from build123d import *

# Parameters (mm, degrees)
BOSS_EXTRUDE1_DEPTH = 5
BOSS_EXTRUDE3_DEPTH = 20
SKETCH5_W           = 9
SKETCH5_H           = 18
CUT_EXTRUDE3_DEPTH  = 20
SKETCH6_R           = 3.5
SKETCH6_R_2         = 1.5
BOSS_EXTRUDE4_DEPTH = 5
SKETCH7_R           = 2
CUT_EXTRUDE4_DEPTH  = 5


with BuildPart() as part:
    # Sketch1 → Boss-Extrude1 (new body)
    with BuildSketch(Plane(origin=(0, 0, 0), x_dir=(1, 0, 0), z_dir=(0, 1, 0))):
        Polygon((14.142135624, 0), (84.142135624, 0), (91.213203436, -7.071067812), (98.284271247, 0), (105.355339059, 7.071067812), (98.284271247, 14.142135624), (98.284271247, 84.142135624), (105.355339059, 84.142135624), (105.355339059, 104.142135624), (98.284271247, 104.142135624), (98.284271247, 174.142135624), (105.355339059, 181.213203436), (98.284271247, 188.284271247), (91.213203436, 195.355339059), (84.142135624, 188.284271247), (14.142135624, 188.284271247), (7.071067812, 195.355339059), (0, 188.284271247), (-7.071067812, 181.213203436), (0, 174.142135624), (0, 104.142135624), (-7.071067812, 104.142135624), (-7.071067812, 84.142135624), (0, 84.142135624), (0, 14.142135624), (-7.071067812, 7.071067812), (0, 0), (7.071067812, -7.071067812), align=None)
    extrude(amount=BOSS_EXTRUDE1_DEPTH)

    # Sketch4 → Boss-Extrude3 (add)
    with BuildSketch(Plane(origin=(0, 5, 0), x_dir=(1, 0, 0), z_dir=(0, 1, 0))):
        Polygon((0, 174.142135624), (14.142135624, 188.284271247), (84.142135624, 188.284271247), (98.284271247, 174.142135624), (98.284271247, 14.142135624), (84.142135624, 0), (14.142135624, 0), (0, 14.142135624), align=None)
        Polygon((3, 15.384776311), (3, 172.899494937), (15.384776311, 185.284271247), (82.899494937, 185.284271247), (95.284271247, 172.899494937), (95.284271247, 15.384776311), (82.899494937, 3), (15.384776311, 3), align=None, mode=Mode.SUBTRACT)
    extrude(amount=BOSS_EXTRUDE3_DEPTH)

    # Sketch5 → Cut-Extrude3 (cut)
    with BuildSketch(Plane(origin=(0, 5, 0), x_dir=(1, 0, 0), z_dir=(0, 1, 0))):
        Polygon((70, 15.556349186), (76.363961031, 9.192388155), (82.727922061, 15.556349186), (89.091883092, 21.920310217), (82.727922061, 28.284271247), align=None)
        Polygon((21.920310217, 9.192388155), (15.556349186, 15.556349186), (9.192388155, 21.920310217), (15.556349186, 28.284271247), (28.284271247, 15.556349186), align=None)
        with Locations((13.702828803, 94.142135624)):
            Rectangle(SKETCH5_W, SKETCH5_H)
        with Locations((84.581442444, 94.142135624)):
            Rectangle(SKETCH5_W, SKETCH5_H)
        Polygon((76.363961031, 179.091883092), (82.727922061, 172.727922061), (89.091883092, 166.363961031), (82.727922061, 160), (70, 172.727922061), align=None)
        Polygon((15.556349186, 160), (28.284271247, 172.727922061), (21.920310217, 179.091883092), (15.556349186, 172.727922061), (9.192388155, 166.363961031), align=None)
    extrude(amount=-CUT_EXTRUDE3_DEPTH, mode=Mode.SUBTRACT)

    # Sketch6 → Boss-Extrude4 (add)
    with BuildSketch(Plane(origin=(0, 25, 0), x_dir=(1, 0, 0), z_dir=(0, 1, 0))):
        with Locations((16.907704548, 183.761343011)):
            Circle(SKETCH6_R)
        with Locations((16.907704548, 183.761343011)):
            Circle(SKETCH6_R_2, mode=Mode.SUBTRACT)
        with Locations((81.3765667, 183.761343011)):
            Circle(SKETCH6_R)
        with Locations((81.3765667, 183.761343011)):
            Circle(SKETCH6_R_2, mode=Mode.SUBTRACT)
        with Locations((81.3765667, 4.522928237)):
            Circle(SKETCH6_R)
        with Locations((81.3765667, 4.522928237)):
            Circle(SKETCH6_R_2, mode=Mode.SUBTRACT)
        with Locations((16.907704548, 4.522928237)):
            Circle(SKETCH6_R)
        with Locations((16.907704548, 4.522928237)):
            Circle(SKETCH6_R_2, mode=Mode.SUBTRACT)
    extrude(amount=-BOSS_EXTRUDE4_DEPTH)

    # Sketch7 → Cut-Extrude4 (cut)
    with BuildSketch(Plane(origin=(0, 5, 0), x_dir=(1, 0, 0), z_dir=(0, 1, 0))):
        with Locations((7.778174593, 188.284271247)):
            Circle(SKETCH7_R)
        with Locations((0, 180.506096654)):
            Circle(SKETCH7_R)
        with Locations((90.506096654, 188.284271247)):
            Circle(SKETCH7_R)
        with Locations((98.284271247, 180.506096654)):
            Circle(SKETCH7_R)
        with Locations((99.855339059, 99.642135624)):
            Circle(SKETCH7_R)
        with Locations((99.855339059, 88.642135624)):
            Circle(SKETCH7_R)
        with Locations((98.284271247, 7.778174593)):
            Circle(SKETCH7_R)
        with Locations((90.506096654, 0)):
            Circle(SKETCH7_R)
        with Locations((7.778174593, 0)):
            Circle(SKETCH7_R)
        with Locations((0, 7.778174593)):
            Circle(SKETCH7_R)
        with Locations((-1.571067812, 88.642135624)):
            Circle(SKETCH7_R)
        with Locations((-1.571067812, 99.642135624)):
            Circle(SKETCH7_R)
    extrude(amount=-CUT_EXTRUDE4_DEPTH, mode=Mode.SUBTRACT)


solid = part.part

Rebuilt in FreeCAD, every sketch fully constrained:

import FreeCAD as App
import Part
import Sketcher

V = App.Vector
Q = App.Units.Quantity

doc = App.newDocument("Part")
body = doc.addObject("PartDesign::Body", "Body")

sketch1 = doc.addObject("Sketcher::SketchObject", "Sketch")
body.addObject(sketch1)
sketch1.AttachmentSupport = (doc.XZ_Plane, [""])
sketch1.MapMode = "FlatFace"
sketch1.addGeometry([
    Part.LineSegment(V(14, 0, 0), V(84, 0, 0)),
    Part.LineSegment(V(84, 0, 0), V(91, 7, 0)),
    Part.LineSegment(V(91, 7, 0), V(98, 0, 0)),
    Part.LineSegment(V(98, 0, 0), V(105, -7, 0)),
    Part.LineSegment(V(105, -7, 0), V(98, -14, 0)),
    Part.LineSegment(V(98, -14, 0), V(98, -84, 0)),
    Part.LineSegment(V(98, -84, 0), V(105, -84, 0)),
    Part.LineSegment(V(105, -84, 0), V(105, -104, 0)),
    Part.LineSegment(V(105, -104, 0), V(98, -104, 0)),
    Part.LineSegment(V(98, -104, 0), V(98, -174, 0)),
    Part.LineSegment(V(98, -174, 0), V(105, -181, 0)),
    Part.LineSegment(V(105, -181, 0), V(98, -188, 0)),
    Part.LineSegment(V(98, -188, 0), V(91, -195, 0)),
    Part.LineSegment(V(91, -195, 0), V(84, -188, 0)),
    Part.LineSegment(V(84, -188, 0), V(14, -188, 0)),
    Part.LineSegment(V(14, -188, 0), V(7, -195, 0)),
    Part.LineSegment(V(7, -195, 0), V(0, -188, 0)),
    Part.LineSegment(V(0, -188, 0), V(-7, -181, 0)),
    Part.LineSegment(V(-7, -181, 0), V(0, -174, 0)),
    Part.LineSegment(V(0, -174, 0), V(0, -104, 0)),
    Part.LineSegment(V(0, -104, 0), V(-7, -104, 0)),
    Part.LineSegment(V(-7, -104, 0), V(-7, -84, 0)),
    Part.LineSegment(V(-7, -84, 0), V(0, -84, 0)),
    Part.LineSegment(V(0, -84, 0), V(0, -14, 0)),
    Part.LineSegment(V(0, -14, 0), V(-7, -7, 0)),
    Part.LineSegment(V(-7, -7, 0), V(7, 7, 0)),
    Part.LineSegment(V(7, 7, 0), V(14, 0, 0)),
], False)
sketch1.addConstraint([
    Sketcher.Constraint("Coincident", 0, 2, 1, 1),
    Sketcher.Constraint("Coincident", 1, 2, 2, 1),
    Sketcher.Constraint("Coincident", 2, 2, 3, 1),
    Sketcher.Constraint("Coincident", 3, 2, 4, 1),
    Sketcher.Constraint("Coincident", 4, 2, 5, 1),
    Sketcher.Constraint("Coincident", 5, 2, 6, 1),
    Sketcher.Constraint("Coincident", 6, 2, 7, 1),
    Sketcher.Constraint("Coincident", 7, 2, 8, 1),
    Sketcher.Constraint("Coincident", 8, 2, 9, 1),
    Sketcher.Constraint("Coincident", 9, 2, 10, 1),
    Sketcher.Constraint("Coincident", 10, 2, 11, 1),
    Sketcher.Constraint("Coincident", 11, 2, 12, 1),
    Sketcher.Constraint("Coincident", 12, 2, 13, 1),
    Sketcher.Constraint("Coincident", 13, 2, 14, 1),
    Sketcher.Constraint("Coincident", 14, 2, 15, 1),
    Sketcher.Constraint("Coincident", 15, 2, 16, 1),
    Sketcher.Constraint("Coincident", 16, 2, 17, 1),
    Sketcher.Constraint("Coincident", 17, 2, 18, 1),
    Sketcher.Constraint("Coincident", 18, 2, 19, 1),
    Sketcher.Constraint("Coincident", 19, 2, 20, 1),
    Sketcher.Constraint("Coincident", 20, 2, 21, 1),
    Sketcher.Constraint("Coincident", 21, 2, 22, 1),
    Sketcher.Constraint("Coincident", 22, 2, 23, 1),
    Sketcher.Constraint("Coincident", 23, 2, 24, 1),
    Sketcher.Constraint("Coincident", 24, 2, 25, 1),
    Sketcher.Constraint("Coincident", 25, 2, 26, 1),
    Sketcher.Constraint("Coincident", 26, 2, 0, 1),
    Sketcher.Constraint("Horizontal", 0),
    Sketcher.Constraint("Vertical", 5),
    Sketcher.Constraint("Horizontal", 6),
    Sketcher.Constraint("Vertical", 7),
    Sketcher.Constraint("Horizontal", 8),
    Sketcher.Constraint("Vertical", 9),
    Sketcher.Constraint("Horizontal", 14),
    Sketcher.Constraint("Vertical", 19),
    Sketcher.Constraint("Horizontal", 20),
    Sketcher.Constraint("Vertical", 21),
    Sketcher.Constraint("Horizontal", 22),
    Sketcher.Constraint("Vertical", 23),
    Sketcher.Constraint("Symmetric", 24, 2, 25, 2, -1, 1),
    Sketcher.Constraint("PointOnObject", 0, 2, -1),
    Sketcher.Constraint("PointOnObject", 2, 2, -1),
    Sketcher.Constraint("PointOnObject", 16, 2, -2),
    Sketcher.Constraint("PointOnObject", 18, 2, -2),
    Sketcher.Constraint("PointOnObject", 22, 2, -2),
    Sketcher.Constraint("Perpendicular", 1, 2),
    Sketcher.Constraint("Parallel", 2, 3),
    Sketcher.Constraint("Perpendicular", 3, 4),
    Sketcher.Constraint("Perpendicular", 4, 10),
    Sketcher.Constraint("Perpendicular", 10, 11),
    Sketcher.Constraint("Parallel", 11, 12),
    Sketcher.Constraint("Perpendicular", 12, 13),
    Sketcher.Constraint("Perpendicular", 13, 15),
    Sketcher.Constraint("Perpendicular", 15, 16),
    Sketcher.Constraint("Parallel", 16, 17),
    Sketcher.Constraint("Perpendicular", 17, 18),
    Sketcher.Constraint("Perpendicular", 18, 24),
    Sketcher.Constraint("Perpendicular", 24, 25),
    Sketcher.Constraint("Perpendicular", 25, 26),
    Sketcher.Constraint("Horizontal", 11, 2, 13, 2),
    Sketcher.Constraint("Horizontal", 12, 2, 15, 2),
    Sketcher.Constraint("Horizontal", 14, 2, 16, 2),
    Sketcher.Constraint("Horizontal", 10, 2, 17, 2),
    Sketcher.Constraint("Horizontal", 9, 2, 18, 2),
    Sketcher.Constraint("Horizontal", 8, 2, 19, 2),
    Sketcher.Constraint("Horizontal", 6, 2, 21, 2),
    Sketcher.Constraint("Horizontal", 4, 2, 23, 2),
    Sketcher.Constraint("Horizontal", 3, 2, 24, 2),
    Sketcher.Constraint("Horizontal", 1, 2, 25, 2),
    Sketcher.Constraint("Vertical", 2, 2, 4, 2),
    Sketcher.Constraint("Vertical", 3, 2, 6, 2),
    Sketcher.Constraint("Vertical", 5, 2, 8, 2),
    Sketcher.Constraint("Vertical", 7, 2, 10, 2),
    Sketcher.Constraint("Vertical", 1, 2, 12, 2),
    Sketcher.Constraint("Vertical", 17, 2, 20, 2),
    Sketcher.Constraint("Equal", 14, 5),
    Sketcher.Constraint("Equal", 5, 9),
    Sketcher.Constraint("DistanceX", 0, 1, 0, 2, Q("70 mm")),
    Sketcher.Constraint("DistanceY", 7, 2, 7, 1, Q("20 mm")),
    Sketcher.Constraint("Distance", 1, Q("10 mm")),
])
pad1 = doc.addObject("PartDesign::Pad", "Pad")
body.addObject(pad1)
pad1.Profile = sketch1
pad1.Length = 5
pad1.Reversed = True

sketch2 = doc.addObject("Sketcher::SketchObject", "Sketch001")
body.addObject(sketch2)
sketch2.AttachmentSupport = (doc.XZ_Plane, [""])
sketch2.MapMode = "FlatFace"
sketch2.AttachmentOffset = App.Placement(V(0, 0, -5), App.Rotation())
sketch2.addGeometry([
    Part.LineSegment(V(14, -188, 0), V(0, -174, 0)),
    Part.LineSegment(V(0, -174, 0), V(0, -14, 0)),
    Part.LineSegment(V(0, -14, 0), V(14, 0, 0)),
    Part.LineSegment(V(14, 0, 0), V(84, 0, 0)),
    Part.LineSegment(V(84, 0, 0), V(98, -14, 0)),
    Part.LineSegment(V(98, -14, 0), V(98, -174, 0)),
    Part.LineSegment(V(98, -174, 0), V(84, -188, 0)),
    Part.LineSegment(V(84, -188, 0), V(14, -188, 0)),
    Part.LineSegment(V(3, -15, 0), V(3, -173, 0)),
    Part.LineSegment(V(3, -173, 0), V(15, -185, 0)),
    Part.LineSegment(V(15, -185, 0), V(83, -185, 0)),
    Part.LineSegment(V(83, -185, 0), V(95, -173, 0)),
    Part.LineSegment(V(95, -173, 0), V(95, -15, 0)),
    Part.LineSegment(V(95, -15, 0), V(83, -3, 0)),
    Part.LineSegment(V(83, -3, 0), V(15, -3, 0)),
    Part.LineSegment(V(15, -3, 0), V(3, -15, 0)),
], False)
sketch2.addConstraint([
    Sketcher.Constraint("Coincident", 0, 2, 1, 1),
    Sketcher.Constraint("Coincident", 1, 2, 2, 1),
    Sketcher.Constraint("Coincident", 2, 2, 3, 1),
    Sketcher.Constraint("Coincident", 3, 2, 4, 1),
    Sketcher.Constraint("Coincident", 4, 2, 5, 1),
    Sketcher.Constraint("Coincident", 5, 2, 6, 1),
    Sketcher.Constraint("Coincident", 6, 2, 7, 1),
    Sketcher.Constraint("Coincident", 7, 2, 0, 1),
    Sketcher.Constraint("Coincident", 8, 2, 9, 1),
    Sketcher.Constraint("Coincident", 9, 2, 10, 1),
    Sketcher.Constraint("Coincident", 10, 2, 11, 1),
    Sketcher.Constraint("Coincident", 11, 2, 12, 1),
    Sketcher.Constraint("Coincident", 12, 2, 13, 1),
    Sketcher.Constraint("Coincident", 13, 2, 14, 1),
    Sketcher.Constraint("Coincident", 14, 2, 15, 1),
    Sketcher.Constraint("Coincident", 15, 2, 8, 1),
    Sketcher.Constraint("Vertical", 1),
    Sketcher.Constraint("Horizontal", 3),
    Sketcher.Constraint("Vertical", 5),
    Sketcher.Constraint("Horizontal", 7),
    Sketcher.Constraint("Vertical", 8),
    Sketcher.Constraint("Horizontal", 10),
    Sketcher.Constraint("Vertical", 12),
    Sketcher.Constraint("Horizontal", 14),
    Sketcher.Constraint("PointOnObject", 0, 2, -2),
    Sketcher.Constraint("PointOnObject", 2, 2, -1),
    Sketcher.Constraint("Perpendicular", 0, 2),
    Sketcher.Constraint("Perpendicular", 2, 4),
    Sketcher.Constraint("Perpendicular", 4, 6),
    Sketcher.Constraint("Perpendicular", 6, 9),
    Sketcher.Constraint("Perpendicular", 9, 11),
    Sketcher.Constraint("Perpendicular", 11, 13),
    Sketcher.Constraint("Perpendicular", 13, 15),
    Sketcher.Constraint("Horizontal", 1, 2, 4, 2),
    Sketcher.Constraint("Horizontal", 0, 2, 5, 2),
    Sketcher.Constraint("Horizontal", 8, 2, 11, 2),
    Sketcher.Constraint("Horizontal", 12, 2, 15, 2),
    Sketcher.Constraint("Vertical", 3, 2, 6, 2),
    Sketcher.Constraint("Vertical", 2, 2, 7, 2),
    Sketcher.Constraint("Vertical", 10, 2, 13, 2),
    Sketcher.Constraint("DistanceX", 3, 1, 3, 2, Q("70 mm")),
    Sketcher.Constraint("DistanceY", 1, 1, 1, 2, Q("160 mm")),
    Sketcher.Constraint("Distance", 0, Q("20 mm")),
    Sketcher.Constraint("DistanceX", -1, 1, 8, 2, Q("3 mm")),
    Sketcher.Constraint("DistanceY", 13, 2, -1, 1, Q("3 mm")),
    Sketcher.Constraint("DistanceY", 7, 2, 9, 2, Q("3 mm")),
    Sketcher.Constraint("DistanceX", 11, 2, 5, 2, Q("3 mm")),
    Sketcher.Constraint("DistanceX", 10, 1, 10, 2, Q("67.514719 mm")),
])
pad2 = doc.addObject("PartDesign::Pad", "Pad001")
body.addObject(pad2)
pad2.Profile = sketch2
pad2.Length = 20
pad2.Reversed = True

sketch3 = doc.addObject("Sketcher::SketchObject", "Sketch002")
body.addObject(sketch3)
sketch3.AttachmentSupport = (doc.XZ_Plane, [""])
sketch3.MapMode = "FlatFace"
sketch3.AttachmentOffset = App.Placement(V(0, 0, -5), App.Rotation())
sketch3.addGeometry([
    Part.LineSegment(V(70, -16, 0), V(76, -9, 0)),
    Part.LineSegment(V(76, -9, 0), V(83, -16, 0)),
    Part.LineSegment(V(83, -16, 0), V(89, -22, 0)),
    Part.LineSegment(V(89, -22, 0), V(83, -28, 0)),
    Part.LineSegment(V(83, -28, 0), V(70, -16, 0)),
    Part.LineSegment(V(9, -22, 0), V(22, -9, 0)),
    Part.LineSegment(V(22, -9, 0), V(28, -16, 0)),
    Part.LineSegment(V(28, -16, 0), V(16, -28, 0)),
    Part.LineSegment(V(16, -28, 0), V(9, -22, 0)),
    Part.LineSegment(V(9, -103, 0), V(9, -85, 0)),
    Part.LineSegment(V(9, -85, 0), V(18, -85, 0)),
    Part.LineSegment(V(18, -85, 0), V(18, -103, 0)),
    Part.LineSegment(V(18, -103, 0), V(9, -103, 0)),
    Part.LineSegment(V(80, -103, 0), V(80, -85, 0)),
    Part.LineSegment(V(80, -85, 0), V(89, -85, 0)),
    Part.LineSegment(V(89, -85, 0), V(89, -103, 0)),
    Part.LineSegment(V(89, -103, 0), V(80, -103, 0)),
    Part.LineSegment(V(83, -173, 0), V(76, -179, 0)),
    Part.LineSegment(V(76, -179, 0), V(70, -173, 0)),
    Part.LineSegment(V(70, -173, 0), V(83, -160, 0)),
    Part.LineSegment(V(83, -160, 0), V(89, -166, 0)),
    Part.LineSegment(V(89, -166, 0), V(83, -173, 0)),
    Part.LineSegment(V(16, -160, 0), V(28, -173, 0)),
    Part.LineSegment(V(28, -173, 0), V(22, -179, 0)),
    Part.LineSegment(V(22, -179, 0), V(16, -173, 0)),
    Part.LineSegment(V(16, -173, 0), V(9, -166, 0)),
    Part.LineSegment(V(9, -166, 0), V(16, -160, 0)),
], False)
sketch3.addConstraint([
    Sketcher.Constraint("Coincident", 0, 2, 1, 1),
    Sketcher.Constraint("Coincident", 1, 2, 2, 1),
    Sketcher.Constraint("Coincident", 2, 2, 3, 1),
    Sketcher.Constraint("Coincident", 3, 2, 4, 1),
    Sketcher.Constraint("Coincident", 4, 2, 0, 1),
    Sketcher.Constraint("Coincident", 5, 2, 6, 1),
    Sketcher.Constraint("Coincident", 6, 2, 7, 1),
    Sketcher.Constraint("Coincident", 7, 2, 8, 1),
    Sketcher.Constraint("Coincident", 8, 2, 5, 1),
    Sketcher.Constraint("Coincident", 9, 2, 10, 1),
    Sketcher.Constraint("Coincident", 10, 2, 11, 1),
    Sketcher.Constraint("Coincident", 11, 2, 12, 1),
    Sketcher.Constraint("Coincident", 12, 2, 9, 1),
    Sketcher.Constraint("Coincident", 13, 2, 14, 1),
    Sketcher.Constraint("Coincident", 14, 2, 15, 1),
    Sketcher.Constraint("Coincident", 15, 2, 16, 1),
    Sketcher.Constraint("Coincident", 16, 2, 13, 1),
    Sketcher.Constraint("Coincident", 17, 2, 18, 1),
    Sketcher.Constraint("Coincident", 18, 2, 19, 1),
    Sketcher.Constraint("Coincident", 19, 2, 20, 1),
    Sketcher.Constraint("Coincident", 20, 2, 21, 1),
    Sketcher.Constraint("Coincident", 21, 2, 17, 1),
    Sketcher.Constraint("Coincident", 22, 2, 23, 1),
    Sketcher.Constraint("Coincident", 23, 2, 24, 1),
    Sketcher.Constraint("Coincident", 24, 2, 25, 1),
    Sketcher.Constraint("Coincident", 25, 2, 26, 1),
    Sketcher.Constraint("Coincident", 26, 2, 22, 1),
    Sketcher.Constraint("Vertical", 9),
    Sketcher.Constraint("Horizontal", 10),
    Sketcher.Constraint("Vertical", 11),
    Sketcher.Constraint("Horizontal", 12),
    Sketcher.Constraint("Vertical", 13),
    Sketcher.Constraint("Horizontal", 14),
    Sketcher.Constraint("Vertical", 15),
    Sketcher.Constraint("Horizontal", 16),
    Sketcher.Constraint("Perpendicular", 0, 1),
    Sketcher.Constraint("Parallel", 1, 2),
    Sketcher.Constraint("Perpendicular", 2, 3),
    Sketcher.Constraint("Perpendicular", 3, 4),
    Sketcher.Constraint("Perpendicular", 4, 5),
    Sketcher.Constraint("Perpendicular", 5, 6),
    Sketcher.Constraint("Perpendicular", 6, 7),
    Sketcher.Constraint("Perpendicular", 7, 8),
    Sketcher.Constraint("Perpendicular", 8, 17),
    Sketcher.Constraint("Perpendicular", 17, 18),
    Sketcher.Constraint("Perpendicular", 18, 19),
    Sketcher.Constraint("Perpendicular", 19, 20),
    Sketcher.Constraint("Perpendicular", 20, 21),
    Sketcher.Constraint("Perpendicular", 21, 22),
    Sketcher.Constraint("Perpendicular", 22, 23),
    Sketcher.Constraint("Perpendicular", 23, 24),
    Sketcher.Constraint("Parallel", 24, 25),
    Sketcher.Constraint("Perpendicular", 25, 26),
    Sketcher.Constraint("Horizontal", 1, 2, 4, 2),
    Sketcher.Constraint("Horizontal", 0, 2, 5, 2),
    Sketcher.Constraint("Horizontal", 4, 2, 6, 2),
    Sketcher.Constraint("Horizontal", 3, 2, 7, 2),
    Sketcher.Constraint("Horizontal", 10, 2, 13, 2),
    Sketcher.Constraint("Horizontal", 12, 2, 15, 2),
    Sketcher.Constraint("Horizontal", 18, 2, 21, 2),
    Sketcher.Constraint("Horizontal", 21, 2, 22, 2),
    Sketcher.Constraint("Horizontal", 17, 2, 23, 2),
    Sketcher.Constraint("Horizontal", 22, 2, 24, 2),
    Sketcher.Constraint("Horizontal", 20, 2, 25, 2),
    Sketcher.Constraint("Vertical", 1, 2, 3, 2),
    Sketcher.Constraint("Vertical", 0, 2, 17, 2),
    Sketcher.Constraint("Vertical", 4, 2, 18, 2),
    Sketcher.Constraint("Vertical", 3, 2, 19, 2),
    Sketcher.Constraint("Vertical", 19, 2, 21, 2),
    Sketcher.Constraint("Vertical", 6, 2, 22, 2),
    Sketcher.Constraint("Equal", 12, 14),
    Sketcher.Constraint("DistanceX", 10, 1, 10, 2, Q("9 mm")),
    Sketcher.Constraint("DistanceY", 9, 1, 9, 2, Q("18 mm")),
    Sketcher.Constraint("Distance", 0, Q("9 mm")),
    Sketcher.Constraint("DistanceX", -1, 1, 4, 2, Q("70 mm")),
    Sketcher.Constraint("DistanceY", 19, 2, -1, 1, Q("160 mm")),
    Sketcher.Constraint("DistanceY", 0, 2, -1, 1, Q("9.192388 mm")),
    Sketcher.Constraint("DistanceX", -1, 1, 5, 2, Q("21.92031 mm")),
    Sketcher.Constraint("DistanceX", -1, 1, 9, 2, Q("9.202829 mm")),
    Sketcher.Constraint("DistanceX", 13, 2, 3, 2, Q("2.64648 mm")),
    Sketcher.Constraint("DistanceY", 9, 2, -1, 1, Q("85.142136 mm")),
])
pocket1 = doc.addObject("PartDesign::Pocket", "Pocket")
body.addObject(pocket1)
pocket1.Profile = sketch3
pocket1.Length = 20
pocket1.Reversed = True

sketch4 = doc.addObject("Sketcher::SketchObject", "Sketch003")
body.addObject(sketch4)
sketch4.AttachmentSupport = (doc.XZ_Plane, [""])
sketch4.MapMode = "FlatFace"
sketch4.AttachmentOffset = App.Placement(V(0, 0, -25), App.Rotation())
sketch4.addGeometry([
    Part.Circle(V(16.9, -183.8, 0), V(0, 0, 1), 3.5),
    Part.Circle(V(16.9, -183.8, 0), V(0, 0, 1), 1.5),
    Part.Circle(V(81.4, -183.8, 0), V(0, 0, 1), 3.5),
    Part.Circle(V(81.4, -183.8, 0), V(0, 0, 1), 1.5),
    Part.Circle(V(81.4, -4.5, 0), V(0, 0, 1), 3.5),
    Part.Circle(V(81.4, -4.5, 0), V(0, 0, 1), 1.5),
    Part.Circle(V(16.9, -4.5, 0), V(0, 0, 1), 3.5),
    Part.Circle(V(16.9, -4.5, 0), V(0, 0, 1), 1.5),
], False)
sketch4.addConstraint([
    Sketcher.Constraint("Coincident", 1, 3, 0, 3),
    Sketcher.Constraint("Coincident", 3, 3, 2, 3),
    Sketcher.Constraint("Coincident", 5, 3, 4, 3),
    Sketcher.Constraint("Coincident", 7, 3, 6, 3),
    Sketcher.Constraint("Equal", 0, 2),
    Sketcher.Constraint("Equal", 1, 3),
    Sketcher.Constraint("Equal", 2, 4),
    Sketcher.Constraint("Equal", 3, 5),
    Sketcher.Constraint("Equal", 4, 6),
    Sketcher.Constraint("Equal", 5, 7),
    Sketcher.Constraint("Horizontal", 1, 3, 2, 3),
    Sketcher.Constraint("Horizontal", 5, 3, 6, 3),
    Sketcher.Constraint("Vertical", 3, 3, 4, 3),
    Sketcher.Constraint("Vertical", 1, 3, 6, 3),
    Sketcher.Constraint("Diameter", 0, Q("7 mm")),
    Sketcher.Constraint("Diameter", 1, Q("3 mm")),
    Sketcher.Constraint("DistanceY", 4, 3, -1, 1, Q("4.522928 mm")),
    Sketcher.Constraint("DistanceX", -1, 1, 0, 3, Q("16.907705 mm")),
    Sketcher.Constraint("DistanceY", 0, 3, -1, 1, Q("183.761343 mm")),
    Sketcher.Constraint("DistanceX", -1, 1, 2, 3, Q("81.376567 mm")),
])
pad3 = doc.addObject("PartDesign::Pad", "Pad002")
body.addObject(pad3)
pad3.Profile = sketch4
pad3.Length = 5

sketch5 = doc.addObject("Sketcher::SketchObject", "Sketch004")
body.addObject(sketch5)
sketch5.AttachmentSupport = (doc.XZ_Plane, [""])
sketch5.MapMode = "FlatFace"
sketch5.AttachmentOffset = App.Placement(V(0, 0, -5), App.Rotation())
sketch5.addGeometry([
    Part.Circle(V(7.8, -188.3, 0), V(0, 0, 1), 2),
    Part.Circle(V(0, -180.5, 0), V(0, 0, 1), 2),
    Part.Circle(V(90.5, -188.3, 0), V(0, 0, 1), 2),
    Part.Circle(V(98.3, -180.5, 0), V(0, 0, 1), 2),
    Part.Circle(V(99.9, -99.6, 0), V(0, 0, 1), 2),
    Part.Circle(V(99.9, -88.6, 0), V(0, 0, 1), 2),
    Part.Circle(V(98.3, -7.8, 0), V(0, 0, 1), 2),
    Part.Circle(V(90.5, 0, 0), V(0, 0, 1), 2),
    Part.Circle(V(7.8, 0, 0), V(0, 0, 1), 2),
    Part.Circle(V(0, -7.8, 0), V(0, 0, 1), 2),
    Part.Circle(V(-1.6, -88.6, 0), V(0, 0, 1), 2),
    Part.Circle(V(-1.6, -99.6, 0), V(0, 0, 1), 2),
], False)
sketch5.addConstraint([
    Sketcher.Constraint("Equal", 0, 1),
    Sketcher.Constraint("Equal", 1, 2),
    Sketcher.Constraint("Equal", 2, 3),
    Sketcher.Constraint("Equal", 3, 4),
    Sketcher.Constraint("Equal", 4, 5),
    Sketcher.Constraint("Equal", 5, 6),
    Sketcher.Constraint("Equal", 6, 7),
    Sketcher.Constraint("Equal", 7, 8),
    Sketcher.Constraint("Equal", 8, 9),
    Sketcher.Constraint("Equal", 9, 10),
    Sketcher.Constraint("Equal", 10, 11),
    Sketcher.Constraint("PointOnObject", 1, 3, -2),
    Sketcher.Constraint("PointOnObject", 7, 3, -1),
    Sketcher.Constraint("PointOnObject", 8, 3, -1),
    Sketcher.Constraint("PointOnObject", 9, 3, -2),
    Sketcher.Constraint("Horizontal", 0, 3, 2, 3),
    Sketcher.Constraint("Horizontal", 1, 3, 3, 3),
    Sketcher.Constraint("Horizontal", 6, 3, 9, 3),
    Sketcher.Constraint("Horizontal", 5, 3, 10, 3),
    Sketcher.Constraint("Horizontal", 4, 3, 11, 3),
    Sketcher.Constraint("Vertical", 4, 3, 5, 3),
    Sketcher.Constraint("Vertical", 3, 3, 6, 3),
    Sketcher.Constraint("Vertical", 2, 3, 7, 3),
    Sketcher.Constraint("Vertical", 0, 3, 8, 3),
    Sketcher.Constraint("Vertical", 10, 3, 11, 3),
    Sketcher.Constraint("Diameter", 0, Q("4 mm")),
    Sketcher.Constraint("DistanceY", 4, 3, 5, 3, Q("11 mm")),
    Sketcher.Constraint("DistanceY", 0, 3, -1, 1, Q("188.284271 mm")),
    Sketcher.Constraint("DistanceX", -1, 1, 3, 3, Q("98.284271 mm")),
    Sketcher.Constraint("DistanceX", -1, 1, 4, 3, Q("99.855339 mm")),
    Sketcher.Constraint("DistanceY", 3, 3, 4, 3, Q("80.863961 mm")),
    Sketcher.Constraint("DistanceY", 5, 3, 6, 3, Q("80.863961 mm")),
    Sketcher.Constraint("DistanceX", -1, 1, 0, 3, Q("7.778175 mm")),
    Sketcher.Constraint("DistanceY", 1, 3, -1, 1, Q("180.506097 mm")),
    Sketcher.Constraint("DistanceX", -1, 1, 2, 3, Q("90.506097 mm")),
    Sketcher.Constraint("DistanceX", 10, 3, -1, 1, Q("1.571068 mm")),
])
pocket2 = doc.addObject("PartDesign::Pocket", "Pocket001")
body.addObject(pocket2)
pocket2.Profile = sketch5
pocket2.Length = 5
pocket2.Reversed = True

doc.recompute()
